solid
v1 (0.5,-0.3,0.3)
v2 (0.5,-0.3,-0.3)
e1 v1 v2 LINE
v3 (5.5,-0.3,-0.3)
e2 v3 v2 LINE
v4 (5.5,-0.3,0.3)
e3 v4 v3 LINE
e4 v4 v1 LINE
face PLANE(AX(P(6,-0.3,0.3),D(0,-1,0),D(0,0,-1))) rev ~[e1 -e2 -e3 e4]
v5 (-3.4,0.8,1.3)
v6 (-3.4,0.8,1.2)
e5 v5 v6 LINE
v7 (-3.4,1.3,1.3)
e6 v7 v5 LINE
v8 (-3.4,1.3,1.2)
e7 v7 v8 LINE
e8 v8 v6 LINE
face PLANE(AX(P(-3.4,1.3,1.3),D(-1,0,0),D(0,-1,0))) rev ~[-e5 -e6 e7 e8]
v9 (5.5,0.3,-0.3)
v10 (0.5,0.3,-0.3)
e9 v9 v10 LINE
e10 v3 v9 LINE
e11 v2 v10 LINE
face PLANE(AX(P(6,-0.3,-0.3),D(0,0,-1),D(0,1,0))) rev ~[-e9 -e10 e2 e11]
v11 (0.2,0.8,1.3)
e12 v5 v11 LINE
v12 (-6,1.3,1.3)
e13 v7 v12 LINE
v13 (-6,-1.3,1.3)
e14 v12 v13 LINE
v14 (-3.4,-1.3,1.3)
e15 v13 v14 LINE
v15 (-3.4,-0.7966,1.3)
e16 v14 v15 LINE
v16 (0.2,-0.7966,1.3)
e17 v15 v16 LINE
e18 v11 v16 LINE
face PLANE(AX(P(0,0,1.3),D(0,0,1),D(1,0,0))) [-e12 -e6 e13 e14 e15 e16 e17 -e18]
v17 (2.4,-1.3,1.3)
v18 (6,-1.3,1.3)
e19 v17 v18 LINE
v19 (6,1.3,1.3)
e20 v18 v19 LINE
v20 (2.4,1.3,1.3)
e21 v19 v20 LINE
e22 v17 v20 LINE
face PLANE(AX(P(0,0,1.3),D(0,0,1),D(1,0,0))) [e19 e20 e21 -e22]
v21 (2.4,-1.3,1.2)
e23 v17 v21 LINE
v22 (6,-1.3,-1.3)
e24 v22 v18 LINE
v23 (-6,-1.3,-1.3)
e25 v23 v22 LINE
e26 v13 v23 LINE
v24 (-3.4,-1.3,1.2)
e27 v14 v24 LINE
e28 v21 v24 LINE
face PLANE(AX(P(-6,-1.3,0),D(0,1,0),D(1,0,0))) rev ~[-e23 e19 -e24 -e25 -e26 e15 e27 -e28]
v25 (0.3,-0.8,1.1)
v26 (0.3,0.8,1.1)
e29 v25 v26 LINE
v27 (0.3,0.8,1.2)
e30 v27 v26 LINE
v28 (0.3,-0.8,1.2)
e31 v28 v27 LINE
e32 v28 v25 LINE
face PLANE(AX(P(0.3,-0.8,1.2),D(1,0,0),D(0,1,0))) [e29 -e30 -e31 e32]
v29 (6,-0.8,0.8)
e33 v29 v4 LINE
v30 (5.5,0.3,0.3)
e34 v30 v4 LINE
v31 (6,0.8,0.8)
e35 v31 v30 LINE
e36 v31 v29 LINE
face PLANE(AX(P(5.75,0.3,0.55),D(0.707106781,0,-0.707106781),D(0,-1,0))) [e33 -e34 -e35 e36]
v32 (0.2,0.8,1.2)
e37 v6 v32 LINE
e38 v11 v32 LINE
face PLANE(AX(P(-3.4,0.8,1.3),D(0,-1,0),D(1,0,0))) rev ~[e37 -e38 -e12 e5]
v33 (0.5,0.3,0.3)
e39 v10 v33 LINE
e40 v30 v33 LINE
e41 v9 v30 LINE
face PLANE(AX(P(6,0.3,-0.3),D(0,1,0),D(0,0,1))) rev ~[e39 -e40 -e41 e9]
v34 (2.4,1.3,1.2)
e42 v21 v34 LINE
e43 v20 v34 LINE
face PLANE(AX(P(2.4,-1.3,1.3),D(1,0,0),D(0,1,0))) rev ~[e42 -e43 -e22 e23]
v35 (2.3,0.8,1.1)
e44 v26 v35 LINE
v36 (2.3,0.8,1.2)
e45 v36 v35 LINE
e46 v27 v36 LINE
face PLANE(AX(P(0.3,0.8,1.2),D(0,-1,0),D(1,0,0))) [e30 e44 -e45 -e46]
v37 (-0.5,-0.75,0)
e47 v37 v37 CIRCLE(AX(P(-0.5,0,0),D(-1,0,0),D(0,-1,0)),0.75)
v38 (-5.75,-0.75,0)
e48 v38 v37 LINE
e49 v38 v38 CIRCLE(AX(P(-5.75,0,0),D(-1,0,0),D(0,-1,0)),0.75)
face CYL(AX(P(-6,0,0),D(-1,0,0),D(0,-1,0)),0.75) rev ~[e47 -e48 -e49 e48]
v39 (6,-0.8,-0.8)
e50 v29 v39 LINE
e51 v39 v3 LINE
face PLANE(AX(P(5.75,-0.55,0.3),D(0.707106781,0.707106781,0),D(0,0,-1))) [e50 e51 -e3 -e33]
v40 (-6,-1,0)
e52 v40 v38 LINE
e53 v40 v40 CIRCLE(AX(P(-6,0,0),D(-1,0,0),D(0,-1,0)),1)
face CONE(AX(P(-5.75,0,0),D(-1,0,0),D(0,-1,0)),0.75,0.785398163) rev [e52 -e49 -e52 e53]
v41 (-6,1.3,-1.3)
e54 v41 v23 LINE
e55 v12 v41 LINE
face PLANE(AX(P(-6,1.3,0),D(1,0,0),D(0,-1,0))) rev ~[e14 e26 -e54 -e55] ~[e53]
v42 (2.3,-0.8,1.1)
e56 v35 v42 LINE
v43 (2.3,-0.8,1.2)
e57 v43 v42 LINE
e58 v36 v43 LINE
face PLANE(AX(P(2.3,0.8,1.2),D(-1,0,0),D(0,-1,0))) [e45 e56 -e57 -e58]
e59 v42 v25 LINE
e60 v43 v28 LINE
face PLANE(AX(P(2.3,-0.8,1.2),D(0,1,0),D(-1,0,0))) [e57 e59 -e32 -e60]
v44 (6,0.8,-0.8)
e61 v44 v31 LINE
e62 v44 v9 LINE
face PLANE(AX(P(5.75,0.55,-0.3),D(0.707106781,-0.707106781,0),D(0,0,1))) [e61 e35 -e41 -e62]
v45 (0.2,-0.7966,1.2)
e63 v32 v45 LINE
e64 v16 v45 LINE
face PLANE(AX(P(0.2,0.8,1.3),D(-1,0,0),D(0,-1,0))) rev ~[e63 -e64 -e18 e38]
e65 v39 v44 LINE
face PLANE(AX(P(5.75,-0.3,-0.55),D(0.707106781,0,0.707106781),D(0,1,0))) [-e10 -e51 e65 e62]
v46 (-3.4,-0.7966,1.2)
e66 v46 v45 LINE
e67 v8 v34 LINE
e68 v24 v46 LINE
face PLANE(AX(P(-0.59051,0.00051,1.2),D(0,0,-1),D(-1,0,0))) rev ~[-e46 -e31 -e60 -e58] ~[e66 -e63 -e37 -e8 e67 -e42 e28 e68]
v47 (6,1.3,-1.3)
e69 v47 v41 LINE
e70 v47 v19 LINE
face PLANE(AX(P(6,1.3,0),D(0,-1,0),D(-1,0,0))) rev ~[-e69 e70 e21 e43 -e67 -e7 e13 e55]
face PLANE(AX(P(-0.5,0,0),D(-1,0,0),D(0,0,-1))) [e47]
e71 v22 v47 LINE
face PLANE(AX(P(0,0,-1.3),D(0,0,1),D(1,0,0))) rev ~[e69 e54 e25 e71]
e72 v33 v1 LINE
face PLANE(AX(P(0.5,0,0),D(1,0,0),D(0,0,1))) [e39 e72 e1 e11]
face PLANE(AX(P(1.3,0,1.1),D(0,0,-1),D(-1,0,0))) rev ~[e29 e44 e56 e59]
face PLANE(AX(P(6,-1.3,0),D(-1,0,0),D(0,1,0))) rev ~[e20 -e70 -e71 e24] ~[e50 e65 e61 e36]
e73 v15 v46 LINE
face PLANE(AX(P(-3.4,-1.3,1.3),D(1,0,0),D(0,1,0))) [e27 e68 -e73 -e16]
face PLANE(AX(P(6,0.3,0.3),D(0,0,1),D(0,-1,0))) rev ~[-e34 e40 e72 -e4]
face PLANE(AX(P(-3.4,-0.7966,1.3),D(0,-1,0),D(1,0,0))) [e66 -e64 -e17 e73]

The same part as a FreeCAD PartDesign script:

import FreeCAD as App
import Part
import Sketcher
from FreeCAD import Vector
Q = App.Units.Quantity


def edges_at(feature, points):
    """Names of the edges that pass closest to the given points."""
    edges = feature.Shape.Edges
    near = lambda p: min(range(len(edges)), key=lambda i: edges[i].distToShape(Part.Vertex(*p))[0])
    return sorted({f"Edge{near(p) + 1}" for p in points})

doc = App.newDocument("Part")
body = doc.addObject("PartDesign::Body", "Body")

# Sketch on XY plane
sketch1 = doc.addObject("Sketcher::SketchObject", "Sketch")
body.addObject(sketch1)
sketch1.AttachmentSupport = (doc.XY_Plane, [""])
sketch1.MapMode = "FlatFace"
sketch1.addGeometry([
    Part.LineSegment(Vector(-6, 1.3, 0), Vector(-6, -1.3, 0)),
    Part.LineSegment(Vector(-6, -1.3, 0), Vector(6, -1.3, 0)),
    Part.LineSegment(Vector(6, -1.3, 0), Vector(6, 1.3, 0)),
    Part.LineSegment(Vector(6, 1.3, 0), Vector(-6, 1.3, 0)),
], False)
sketch1.addConstraint([
    Sketcher.Constraint("Coincident", 0, 2, 1, 1),
    Sketcher.Constraint("Coincident", 1, 2, 2, 1),
    Sketcher.Constraint("Coincident", 2, 2, 3, 1),
    Sketcher.Constraint("Coincident", 3, 2, 0, 1),
    Sketcher.Constraint("Vertical", 0),
    Sketcher.Constraint("Horizontal", 1),
    Sketcher.Constraint("Vertical", 2),
    Sketcher.Constraint("Horizontal", 3),
    Sketcher.Constraint("Symmetric", 0, 2, 2, 2, -1, 1),
    Sketcher.Constraint("DistanceX", 0, 2, -1, 1, Q("6 mm")),
    Sketcher.Constraint("DistanceY", 0, 2, 0, 1, Q("2.6 mm")),
])
pad1 = doc.addObject("PartDesign::Pad", "Pad")
body.addObject(pad1)
pad1.Profile = sketch1
pad1.Length = 2.6
pad1.Midplane = True

# Sketch on YZ plane
sketch2 = doc.addObject("Sketcher::SketchObject", "Sketch001")
body.addObject(sketch2)
sketch2.AttachmentSupport = (doc.YZ_Plane, [""])
sketch2.MapMode = "FlatFace"
sketch2.AttachmentOffset = App.Placement(Vector(0, 0, 6), App.Rotation())
sketch2.addGeometry([
    Part.LineSegment(Vector(-0.3, 0.3, 0), Vector(-0.3, -0.3, 0)),
    Part.LineSegment(Vector(-0.3, -0.3, 0), Vector(0.3, -0.3, 0)),
    Part.LineSegment(Vector(0.3, -0.3, 0), Vector(0.3, 0.3, 0)),
    Part.LineSegment(Vector(0.3, 0.3, 0), Vector(-0.3, 0.3, 0)),
], False)
sketch2.addConstraint([
    Sketcher.Constraint("Coincident", 0, 2, 1, 1),
    Sketcher.Constraint("Coincident", 1, 2, 2, 1),
    Sketcher.Constraint("Coincident", 2, 2, 3, 1),
    Sketcher.Constraint("Coincident", 3, 2, 0, 1),
    Sketcher.Constraint("Vertical", 0),
    Sketcher.Constraint("Horizontal", 1),
    Sketcher.Constraint("Vertical", 2),
    Sketcher.Constraint("Horizontal", 3),
    Sketcher.Constraint("Symmetric", 0, 2, 2, 2, -1, 1),
    Sketcher.Constraint("Equal", 3, 0),
    Sketcher.Constraint("DistanceX", 0, 2, -1, 1, Q("0.3 mm")),
])
pocket1 = doc.addObject("PartDesign::Pocket", "Pocket")
body.addObject(pocket1)
pocket1.Profile = sketch2
pocket1.Length = 5.5
doc.recompute()

chamfer = doc.addObject("PartDesign::Chamfer", "Chamfer")
body.addObject(chamfer)
chamfer.Base = (pocket1, edges_at(pocket1, [
    (6, 0, 0.3),
    (6, 0.3, 0),
    (6, -0.3, 0),
    (6, 0, -0.3),
]))
chamfer.Size = 0.5

# Sketch on YZ plane
sketch3 = doc.addObject("Sketcher::SketchObject", "Sketch002")
body.addObject(sketch3)
sketch3.AttachmentSupport = (doc.YZ_Plane, [""])
sketch3.MapMode = "FlatFace"
sketch3.AttachmentOffset = App.Placement(Vector(0, 0, -6), App.Rotation())
sketch3.addGeometry(Part.Circle(Vector(0, 0, 0), Vector(0, 0, 1), 0.75), False)
sketch3.addConstraint([
    Sketcher.Constraint("Coincident", 0, 3, -1, 1),
    Sketcher.Constraint("Diameter", 0, Q("1.5 mm")),
])
pocket2 = doc.addObject("PartDesign::Pocket", "Pocket001")
body.addObject(pocket2)
pocket2.Profile = sketch3
pocket2.Length = 5.5
pocket2.Reversed = True

# Sketch on XY plane
sketch4 = doc.addObject("Sketcher::SketchObject", "Sketch003")
body.addObject(sketch4)
sketch4.AttachmentSupport = (doc.XY_Plane, [""])
sketch4.MapMode = "FlatFace"
sketch4.AttachmentOffset = App.Placement(Vector(0, 0, 1.3), App.Rotation())
sketch4.addGeometry([
    Part.LineSegment(Vector(-3.4, -1.3, 0), Vector(2.4, -1.3, 0)),  # 0
    Part.LineSegment(Vector(2.4, -1.3, 0), Vector(2.4, 1.3, 0)),  # 1
    Part.LineSegment(Vector(2.4, 1.3, 0), Vector(-3.4, 1.3, 0)),  # 2
    Part.LineSegment(Vector(-3.4, 1.3, 0), Vector(-3.4, 0.8, 0)),  # 3
    Part.LineSegment(Vector(-3.4, 0.8, 0), Vector(0.2, 0.8, 0)),  # 4
    Part.LineSegment(Vector(0.2, 0.8, 0), Vector(0.2, -0.7966, 0)),  # 5
    Part.LineSegment(Vector(0.2, -0.7966, 0), Vector(-3.4, -0.7966, 0)),  # 6
    Part.LineSegment(Vector(-3.4, -0.7966, 0), Vector(-3.4, -1.3, 0)),  # 7
], False)
sketch4.addConstraint([
    Sketcher.Constraint("Coincident", 0, 2, 1, 1),
    Sketcher.Constraint("Coincident", 1, 2, 2, 1),
    Sketcher.Constraint("Coincident", 2, 2, 3, 1),
    Sketcher.Constraint("Coincident", 3, 2, 4, 1),
    Sketcher.Constraint("Coincident", 4, 2, 5, 1),
    Sketcher.Constraint("Coincident", 5, 2, 6, 1),
    Sketcher.Constraint("Coincident", 6, 2, 7, 1),
    Sketcher.Constraint("Coincident", 7, 2, 0, 1),
    Sketcher.Constraint("Horizontal", 0),
    Sketcher.Constraint("Vertical", 1),
    Sketcher.Constraint("Horizontal", 2),
    Sketcher.Constraint("Vertical", 3),
    Sketcher.Constraint("Horizontal", 4),
    Sketcher.Constraint("Vertical", 5),
    Sketcher.Constraint("Horizontal", 6),
    Sketcher.Constraint("Vertical", 7),
    Sketcher.Constraint("Symmetric", 2, 2, 7, 2, -1),
    Sketcher.Constraint("DistanceX", -1, 1, 0, 2, Q("2.4 mm")),
    Sketcher.Constraint("DistanceX", 2, 2, -1, 1, Q("3.4 mm")),
    Sketcher.Constraint("DistanceX", -1, 1, 4, 2, Q("0.2 mm")),
    Sketcher.Constraint("DistanceY", 1, 1, 1, 2, Q("2.6 mm")),
    Sketcher.Constraint("DistanceY", 3, 2, 3, 1, Q("0.5 mm")),
    Sketcher.Constraint("DistanceY", 5, 2, 5, 1, Q("1.5966 mm")),
])
pocket3 = doc.addObject("PartDesign::Pocket", "Pocket002")
body.addObject(pocket3)
pocket3.Profile = sketch4
pocket3.Length = 0.1

# Sketch on XY plane
sketch5 = doc.addObject("Sketcher::SketchObject", "Sketch004")
body.addObject(sketch5)
sketch5.AttachmentSupport = (doc.XY_Plane, [""])
sketch5.MapMode = "FlatFace"
sketch5.AttachmentOffset = App.Placement(Vector(0, 0, 1.2), App.Rotation())
sketch5.addGeometry([
    Part.LineSegment(Vector(2.3, 0.8, 0), Vector(0.3, 0.8, 0)),
    Part.LineSegment(Vector(0.3, 0.8, 0), Vector(0.3, -0.8, 0)),
    Part.LineSegment(Vector(0.3, -0.8, 0), Vector(2.3, -0.8, 0)),
    Part.LineSegment(Vector(2.3, -0.8, 0), Vector(2.3, 0.8, 0)),
], False)
sketch5.addConstraint([
    Sketcher.Constraint("Coincident", 0, 2, 1, 1),
    Sketcher.Constraint("Coincident", 1, 2, 2, 1),
    Sketcher.Constraint("Coincident", 2, 2, 3, 1),
    Sketcher.Constraint("Coincident", 3, 2, 0, 1),
    Sketcher.Constraint("Horizontal", 0),
    Sketcher.Constraint("Vertical", 1),
    Sketcher.Constraint("Horizontal", 2),
    Sketcher.Constraint("Vertical", 3),
    Sketcher.Constraint("DistanceY", -1, 1, 0, 2, Q("0.8 mm")),
    Sketcher.Constraint("DistanceY", 1, 2, -1, 1, Q("0.8 mm")),
    Sketcher.Constraint("DistanceX", 0, 2, 0, 1, Q("2 mm")),
    Sketcher.Constraint("DistanceX", -1, 1, 0, 2, Q("0.3 mm")),
])
pocket4 = doc.addObject("PartDesign::Pocket", "Pocket003")
body.addObject(pocket4)
pocket4.Profile = sketch5
pocket4.Length = 0.1
doc.recompute()

chamfer2 = doc.addObject("PartDesign::Chamfer", "Chamfer001")
body.addObject(chamfer2)
chamfer2.Base = (pocket4, edges_at(pocket4, [(-6, 0.75, 0)]))
chamfer2.Size = 0.25

doc.recompute()
